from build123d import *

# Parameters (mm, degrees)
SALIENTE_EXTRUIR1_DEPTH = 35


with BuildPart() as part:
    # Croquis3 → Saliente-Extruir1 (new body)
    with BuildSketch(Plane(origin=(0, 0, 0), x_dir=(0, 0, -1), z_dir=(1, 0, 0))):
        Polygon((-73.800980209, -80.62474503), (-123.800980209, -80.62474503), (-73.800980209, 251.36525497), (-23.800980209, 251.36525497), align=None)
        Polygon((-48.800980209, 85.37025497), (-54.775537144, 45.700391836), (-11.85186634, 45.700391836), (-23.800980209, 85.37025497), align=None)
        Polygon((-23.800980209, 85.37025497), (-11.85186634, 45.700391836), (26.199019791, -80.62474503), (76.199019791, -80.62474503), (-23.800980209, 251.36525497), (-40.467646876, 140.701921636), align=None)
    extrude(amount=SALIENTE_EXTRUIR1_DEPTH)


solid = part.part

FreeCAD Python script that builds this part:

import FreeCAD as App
import Part
import Sketcher

V = App.Vector
Q = App.Units.Quantity


def add_polygon(sketch, points):
    """Adds a closed chain of lines whose ends are joined by coincident constraints."""
    first, n = sketch.GeometryCount, len(points)
    for a, b in zip(points, points[1:] + points[:1]):
        sketch.addGeometry(Part.LineSegment(App.Vector(*a, 0), App.Vector(*b, 0)), False)
    for i in range(n):
        sketch.addConstraint(Sketcher.Constraint("Coincident", first + i, 2, first + (i + 1) % n, 1))

doc = App.newDocument("Part")
body = doc.addObject("PartDesign::Body", "Body")

# Sketch on YZ plane
sketch1 = body.newObject("Sketcher::SketchObject", "Sketch")
sketch1.AttachmentSupport = (doc.getObject("YZ_Plane"), [""])
sketch1.MapMode = "FlatFace"
add_polygon(sketch1, [(-80.624745, 123.80098), (-80.624745, 73.80098), (45.700392, 54.775537), (45.700392, 11.851866), (-80.624745, -26.19902), (-80.624745, -76.19902), (251.365255, 23.80098), (251.365255, 73.80098)])  # lines 0-7
add_polygon(sketch1, [(85.370255, 48.80098), (140.701922, 40.467647), (85.370255, 23.80098)])  # lines 8-10
sketch1.addConstraint([
    Sketcher.Constraint("Vertical", 0),
    Sketcher.Constraint("Vertical", 2),
    Sketcher.Constraint("Vertical", 4),
    Sketcher.Constraint("Vertical", 6),
    Sketcher.Constraint("Vertical", 10),
    Sketcher.Constraint("Parallel", 3, 5),
    Sketcher.Constraint("Parallel", 1, 7),
    Sketcher.Constraint("Parallel", 7, 8),
    Sketcher.Constraint("Parallel", 5, 9),
    Sketcher.Constraint("Horizontal", 0, 2, 6, 2),
    Sketcher.Constraint("Horizontal", 5, 2, 9, 2),
    Sketcher.Constraint("Vertical", 0, 2, 3, 2),
    Sketcher.Constraint("Equal", 0, 4),
    Sketcher.Constraint("Equal", 4, 6),
    Sketcher.Constraint("DistanceY", 0, 2, 0, 1, Q("50 mm")),
    Sketcher.Constraint("DistanceY", 10, 1, 10, 2, Q("25 mm")),
    Sketcher.Constraint("DistanceY", 3, 2, 0, 2, Q("100 mm")),
    Sketcher.Constraint("DistanceX", 0, 2, 5, 2, Q("331.99 mm")),
    Sketcher.Constraint("DistanceX", 9, 2, 5, 2, Q("165.995 mm")),
    Sketcher.Constraint("DistanceY", 2, 2, 2, 1, Q("42.923671 mm")),
    Sketcher.Constraint("DistanceY", -1, 1, 0, 2, Q("73.80098 mm")),
    Sketcher.Constraint("DistanceX", -1, 1, 1, 2, Q("45.700392 mm")),
])
pad1 = body.newObject("PartDesign::Pad", "Pad")
pad1.Profile = sketch1
pad1.Length = 35

doc.recompute()
